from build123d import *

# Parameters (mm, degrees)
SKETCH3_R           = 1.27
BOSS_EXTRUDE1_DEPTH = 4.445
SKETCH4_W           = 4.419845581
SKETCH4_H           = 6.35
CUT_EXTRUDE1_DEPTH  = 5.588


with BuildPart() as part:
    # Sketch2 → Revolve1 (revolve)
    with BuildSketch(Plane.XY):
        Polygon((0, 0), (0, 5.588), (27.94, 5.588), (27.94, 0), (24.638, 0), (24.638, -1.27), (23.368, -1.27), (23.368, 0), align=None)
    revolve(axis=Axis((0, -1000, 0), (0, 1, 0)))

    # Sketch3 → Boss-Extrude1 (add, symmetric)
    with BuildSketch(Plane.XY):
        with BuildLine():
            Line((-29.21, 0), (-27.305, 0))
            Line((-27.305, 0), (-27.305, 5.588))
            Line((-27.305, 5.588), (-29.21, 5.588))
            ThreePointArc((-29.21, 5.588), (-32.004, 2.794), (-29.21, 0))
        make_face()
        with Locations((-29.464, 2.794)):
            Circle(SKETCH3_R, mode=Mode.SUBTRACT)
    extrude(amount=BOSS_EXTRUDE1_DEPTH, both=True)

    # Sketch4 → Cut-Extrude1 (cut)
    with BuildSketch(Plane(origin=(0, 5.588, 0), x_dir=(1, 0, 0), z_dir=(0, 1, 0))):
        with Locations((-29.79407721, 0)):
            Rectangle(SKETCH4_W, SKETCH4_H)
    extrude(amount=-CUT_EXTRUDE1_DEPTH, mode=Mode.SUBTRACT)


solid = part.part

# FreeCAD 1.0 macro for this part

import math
import FreeCAD as App
import Part
import Sketcher

V = App.Vector
Q = App.Units.Quantity


def add_polygon(sketch, points):
    """Adds a closed chain of lines whose ends are joined by coincident constraints."""
    first, n = sketch.GeometryCount, len(points)
    for a, b in zip(points, points[1:] + points[:1]):
        sketch.addGeometry(Part.LineSegment(App.Vector(*a, 0), App.Vector(*b, 0)), False)
    for i in range(n):
        sketch.addConstraint(Sketcher.Constraint("Coincident", first + i, 2, first + (i + 1) % n, 1))

doc = App.newDocument("Part")
body = doc.addObject("PartDesign::Body", "Body")

# Sketch on XY plane
sketch1 = body.newObject("Sketcher::SketchObject", "Sketch")
sketch1.AttachmentSupport = (doc.getObject("XY_Plane"), [""])
sketch1.MapMode = "FlatFace"
add_polygon(sketch1, [(0, 5.6), (0, 0), (23.4, 0), (23.4, -1.3), (24.6, -1.3), (24.6, 0), (27.9, 0), (27.9, 5.6)])  # lines 0-7
sketch1.addConstraint([
    Sketcher.Constraint("Vertical", 0),
    Sketcher.Constraint("Horizontal", 1),
    Sketcher.Constraint("Vertical", 2),
    Sketcher.Constraint("Horizontal", 3),
    Sketcher.Constraint("Vertical", 4),
    Sketcher.Constraint("Horizontal", 5),
    Sketcher.Constraint("Vertical", 6),
    Sketcher.Constraint("Horizontal", 7),
    Sketcher.Constraint("Coincident", 0, 2, -1, 1),
    Sketcher.Constraint("PointOnObject", 4, 2, -1),
    Sketcher.Constraint("Equal", 3, 2),
    Sketcher.Constraint("DistanceX", 7, 2, 7, 1, Q("1.1 in")),
    Sketcher.Constraint("DistanceX", 1, 1, 1, 2, Q("0.92 in")),
    Sketcher.Constraint("DistanceX", 3, 1, 3, 2, Q("0.05 in")),
    Sketcher.Constraint("DistanceY", 0, 2, 0, 1, Q("0.22 in")),
])
revolution = body.newObject("PartDesign::Revolution", "Revolution")
revolution.Profile = sketch1
revolution.ReferenceAxis = (sketch1, ["V_Axis"])
revolution.Angle = 360

# Sketch on XY plane
sketch2 = body.newObject("Sketcher::SketchObject", "Sketch001")
sketch2.AttachmentSupport = (doc.getObject("XY_Plane"), [""])
sketch2.MapMode = "FlatFace"
sketch2.addGeometry([
    Part.LineSegment(V(-29.2, 0, 0), V(-27.3, 0, 0)),  # 0
    Part.LineSegment(V(-27.3, 0, 0), V(-27.3, 5.6, 0)),  # 1
    Part.LineSegment(V(-27.3, 5.6, 0), V(-29.2, 5.6, 0)),  # 2
    Part.ArcOfCircle(Part.Circle(V(-29.2, 2.8, 0), V(0, 0, 1), 2.8), math.radians(90), math.radians(270)),  # 3
    Part.Circle(V(-29.5, 2.8, 0), V(0, 0, 1), 1.3),  # 4
], False)
sketch2.addConstraint([
    Sketcher.Constraint("Coincident", 0, 2, 1, 1),
    Sketcher.Constraint("Coincident", 1, 2, 2, 1),
    Sketcher.Constraint("Tangent", 2, 2, 3, 1),
    Sketcher.Constraint("Tangent", 3, 2, 0, 1),
    Sketcher.Constraint("Horizontal", 0),
    Sketcher.Constraint("Vertical", 1),
    Sketcher.Constraint("Horizontal", 2),
    Sketcher.Constraint("PointOnObject", 0, 2, -1),
    Sketcher.Constraint("Horizontal", 3, 3, 4, 3),
    Sketcher.Constraint("Diameter", 4, Q("0.1 in")),
    Sketcher.Constraint("Radius", 3, Q("0.11 in")),
    Sketcher.Constraint("DistanceX", 0, 1, 0, 2, Q("0.075 in")),
    Sketcher.Constraint("DistanceX", 3, 3, -1, 1, Q("1.15 in")),
    Sketcher.Constraint("DistanceX", 4, 3, -1, 1, Q("1.16 in")),
])
pad1 = body.newObject("PartDesign::Pad", "Pad")
pad1.Profile = sketch2
pad1.Length = Q("0.35 in")
pad1.Midplane = True

# Sketch on XZ plane
sketch3 = body.newObject("Sketcher::SketchObject", "Sketch002")
sketch3.AttachmentSupport = (doc.getObject("XZ_Plane"), [""])
sketch3.MapMode = "FlatFace"
sketch3.AttachmentOffset = App.Placement(V(0, 0, -0.22 * 25.4), App.Rotation())
add_polygon(sketch3, [(-32, -3.2), (-32, 3.2), (-27.6, 3.2), (-27.6, -3.2)])  # lines 0-3
sketch3.addConstraint([
    Sketcher.Constraint("Vertical", 0),
    Sketcher.Constraint("Horizontal", 1),
    Sketcher.Constraint("Vertical", 2),
    Sketcher.Constraint("Horizontal", 3),
    Sketcher.Constraint("DistanceY", 0, 1, 0, 2, Q("0.25 in")),
    Sketcher.Constraint("DistanceX", 0, 2, -1, 1, Q("1.26 in")),
    Sketcher.Constraint("DistanceY", -1, 1, 0, 2, Q("0.125 in")),
    Sketcher.Constraint("DistanceX", 1, 1, 1, 2, Q("4.419846 mm")),
])
pocket1 = body.newObject("PartDesign::Pocket", "Pocket")
pocket1.Profile = sketch3
pocket1.Length = Q("0.22 in")
pocket1.Reversed = True

doc.recompute()
